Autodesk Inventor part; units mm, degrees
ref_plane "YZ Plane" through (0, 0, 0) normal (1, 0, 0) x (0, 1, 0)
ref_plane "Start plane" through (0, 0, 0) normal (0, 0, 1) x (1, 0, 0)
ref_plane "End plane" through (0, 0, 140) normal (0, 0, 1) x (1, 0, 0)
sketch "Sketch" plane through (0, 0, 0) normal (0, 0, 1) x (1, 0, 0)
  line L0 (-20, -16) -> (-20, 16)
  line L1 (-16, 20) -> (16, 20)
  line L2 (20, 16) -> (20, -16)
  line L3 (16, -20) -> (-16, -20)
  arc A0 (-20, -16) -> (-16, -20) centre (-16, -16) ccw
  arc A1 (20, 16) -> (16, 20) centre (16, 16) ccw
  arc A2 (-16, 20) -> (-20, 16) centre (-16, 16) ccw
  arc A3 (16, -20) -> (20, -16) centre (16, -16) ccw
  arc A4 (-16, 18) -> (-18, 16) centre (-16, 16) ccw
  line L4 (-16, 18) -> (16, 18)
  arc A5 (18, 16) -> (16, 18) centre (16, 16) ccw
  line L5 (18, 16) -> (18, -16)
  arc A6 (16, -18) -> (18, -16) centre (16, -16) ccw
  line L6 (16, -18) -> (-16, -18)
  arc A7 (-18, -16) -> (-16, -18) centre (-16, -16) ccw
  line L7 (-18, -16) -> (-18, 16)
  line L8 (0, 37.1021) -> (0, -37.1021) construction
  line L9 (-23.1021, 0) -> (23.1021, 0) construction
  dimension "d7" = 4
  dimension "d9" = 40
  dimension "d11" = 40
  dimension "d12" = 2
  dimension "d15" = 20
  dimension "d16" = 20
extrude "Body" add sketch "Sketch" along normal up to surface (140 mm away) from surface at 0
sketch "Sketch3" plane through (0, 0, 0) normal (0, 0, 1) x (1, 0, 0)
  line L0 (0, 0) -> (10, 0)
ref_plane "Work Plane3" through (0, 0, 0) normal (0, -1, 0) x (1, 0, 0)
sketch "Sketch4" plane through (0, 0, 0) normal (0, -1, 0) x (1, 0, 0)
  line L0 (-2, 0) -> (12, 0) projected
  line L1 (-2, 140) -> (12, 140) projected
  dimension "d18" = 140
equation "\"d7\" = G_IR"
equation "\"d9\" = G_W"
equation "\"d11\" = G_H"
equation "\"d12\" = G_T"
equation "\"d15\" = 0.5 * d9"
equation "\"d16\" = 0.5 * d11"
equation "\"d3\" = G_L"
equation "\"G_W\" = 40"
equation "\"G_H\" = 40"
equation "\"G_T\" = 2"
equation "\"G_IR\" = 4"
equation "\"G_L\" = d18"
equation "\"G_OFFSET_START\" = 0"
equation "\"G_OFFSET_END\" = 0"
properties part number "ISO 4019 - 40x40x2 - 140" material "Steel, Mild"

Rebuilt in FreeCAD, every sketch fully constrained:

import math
import FreeCAD as App
import Part
import Sketcher

doc = App.newDocument("Part")
params = doc.addObject("Spreadsheet::Sheet", "Params")
for row, (alias, value) in enumerate([
    ("sketch1_radius", "4 mm"),
    ("sketch1_radius2", "2 mm"),
    ("pad1_length", "140 mm"),
], start=1):
    params.set(f"A{row}", alias)
    params.set(f"B{row}", "=" + value)
    params.setAlias(f"B{row}", alias)

body = doc.addObject("PartDesign::Body", "Body")

sketch1 = body.newObject("Sketcher::SketchObject", "Sketch")
sketch1.AttachmentSupport = (doc.getObject("XY_Plane"), [""])
sketch1.MapMode = "FlatFace"
sketch1.addGeometry([
    Part.LineSegment(App.Vector(-20, 16, 0), App.Vector(-20, -16, 0)),
    Part.ArcOfCircle(Part.Circle(App.Vector(-16, -16, 0), App.Vector(0, 0, 1), 4), math.radians(180), math.radians(270)),
    Part.LineSegment(App.Vector(-16, -20, 0), App.Vector(16, -20, 0)),
    Part.ArcOfCircle(Part.Circle(App.Vector(16, -16, 0), App.Vector(0, 0, 1), 4), math.radians(-90), math.radians(0)),
    Part.LineSegment(App.Vector(20, -16, 0), App.Vector(20, 16, 0)),
    Part.ArcOfCircle(Part.Circle(App.Vector(16, 16, 0), App.Vector(0, 0, 1), 4), math.radians(0), math.radians(90)),
    Part.LineSegment(App.Vector(16, 20, 0), App.Vector(-16, 20, 0)),
    Part.ArcOfCircle(Part.Circle(App.Vector(-16, 16, 0), App.Vector(0, 0, 1), 4), math.radians(90), math.radians(180)),
    Part.ArcOfCircle(Part.Circle(App.Vector(-16, 16, 0), App.Vector(0, 0, 1), 2), math.radians(90), math.radians(180)),
    Part.LineSegment(App.Vector(-16, 18, 0), App.Vector(16, 18, 0)),
    Part.ArcOfCircle(Part.Circle(App.Vector(16, 16, 0), App.Vector(0, 0, 1), 2), math.radians(0), math.radians(90)),
    Part.LineSegment(App.Vector(18, 16, 0), App.Vector(18, -16, 0)),
    Part.ArcOfCircle(Part.Circle(App.Vector(16, -16, 0), App.Vector(0, 0, 1), 2), math.radians(-90), math.radians(0)),
    Part.LineSegment(App.Vector(16, -18, 0), App.Vector(-16, -18, 0)),
    Part.ArcOfCircle(Part.Circle(App.Vector(-16, -16, 0), App.Vector(0, 0, 1), 2), math.radians(180), math.radians(270)),
    Part.LineSegment(App.Vector(-18, -16, 0), App.Vector(-18, 16, 0)),
], False)
sketch1.addConstraint([
    Sketcher.Constraint("Tangent", 0, 2, 1, 1),
    Sketcher.Constraint("Tangent", 1, 2, 2, 1),
    Sketcher.Constraint("Tangent", 2, 2, 3, 1),
    Sketcher.Constraint("Tangent", 3, 2, 4, 1),
    Sketcher.Constraint("Tangent", 4, 2, 5, 1),
    Sketcher.Constraint("Tangent", 5, 2, 6, 1),
    Sketcher.Constraint("Tangent", 6, 2, 7, 1),
    Sketcher.Constraint("Tangent", 7, 2, 0, 1),
    Sketcher.Constraint("Tangent", 8, 1, 9, 1),
    Sketcher.Constraint("Tangent", 9, 2, 10, 2),
    Sketcher.Constraint("Tangent", 10, 1, 11, 1),
    Sketcher.Constraint("Tangent", 11, 2, 12, 2),
    Sketcher.Constraint("Tangent", 12, 1, 13, 1),
    Sketcher.Constraint("Tangent", 13, 2, 14, 2),
    Sketcher.Constraint("Tangent", 14, 1, 15, 1),
    Sketcher.Constraint("Tangent", 15, 2, 8, 2),
    Sketcher.Constraint("Vertical", 0),
    Sketcher.Constraint("Horizontal", 2),
    Sketcher.Constraint("Vertical", 4),
    Sketcher.Constraint("Horizontal", 6),
    Sketcher.Constraint("Horizontal", 9),
    Sketcher.Constraint("Vertical", 11),
    Sketcher.Constraint("Horizontal", 13),
    Sketcher.Constraint("Vertical", 15),
    Sketcher.Constraint("Coincident", 8, 3, 7, 3),
    Sketcher.Constraint("Coincident", 10, 3, 5, 3),
    Sketcher.Constraint("Coincident", 12, 3, 3, 3),
    Sketcher.Constraint("Equal", 1, 3),
    Sketcher.Constraint("Equal", 3, 5),
    Sketcher.Constraint("Equal", 5, 7),
    Sketcher.Constraint("Equal", 12, 14),
    Sketcher.Constraint("Symmetric", 1, 3, 5, 3, -1, 1),
    Sketcher.Constraint("Equal", 13, 0),
    Sketcher.Constraint("Radius", 1, 4.0),
    Sketcher.Constraint("Radius", 8, 2.0),
    Sketcher.Constraint("DistanceX", 0, 2, -1, 1, 20.0),
])
sketch1.setExpression("Constraints[33]", "Params.sketch1_radius")
sketch1.setExpression("Constraints[34]", "Params.sketch1_radius2")
pad1 = body.newObject("PartDesign::Pad", "Pad")
pad1.Profile = sketch1
pad1.setExpression("Length", "Params.pad1_length")

doc.recompute()
